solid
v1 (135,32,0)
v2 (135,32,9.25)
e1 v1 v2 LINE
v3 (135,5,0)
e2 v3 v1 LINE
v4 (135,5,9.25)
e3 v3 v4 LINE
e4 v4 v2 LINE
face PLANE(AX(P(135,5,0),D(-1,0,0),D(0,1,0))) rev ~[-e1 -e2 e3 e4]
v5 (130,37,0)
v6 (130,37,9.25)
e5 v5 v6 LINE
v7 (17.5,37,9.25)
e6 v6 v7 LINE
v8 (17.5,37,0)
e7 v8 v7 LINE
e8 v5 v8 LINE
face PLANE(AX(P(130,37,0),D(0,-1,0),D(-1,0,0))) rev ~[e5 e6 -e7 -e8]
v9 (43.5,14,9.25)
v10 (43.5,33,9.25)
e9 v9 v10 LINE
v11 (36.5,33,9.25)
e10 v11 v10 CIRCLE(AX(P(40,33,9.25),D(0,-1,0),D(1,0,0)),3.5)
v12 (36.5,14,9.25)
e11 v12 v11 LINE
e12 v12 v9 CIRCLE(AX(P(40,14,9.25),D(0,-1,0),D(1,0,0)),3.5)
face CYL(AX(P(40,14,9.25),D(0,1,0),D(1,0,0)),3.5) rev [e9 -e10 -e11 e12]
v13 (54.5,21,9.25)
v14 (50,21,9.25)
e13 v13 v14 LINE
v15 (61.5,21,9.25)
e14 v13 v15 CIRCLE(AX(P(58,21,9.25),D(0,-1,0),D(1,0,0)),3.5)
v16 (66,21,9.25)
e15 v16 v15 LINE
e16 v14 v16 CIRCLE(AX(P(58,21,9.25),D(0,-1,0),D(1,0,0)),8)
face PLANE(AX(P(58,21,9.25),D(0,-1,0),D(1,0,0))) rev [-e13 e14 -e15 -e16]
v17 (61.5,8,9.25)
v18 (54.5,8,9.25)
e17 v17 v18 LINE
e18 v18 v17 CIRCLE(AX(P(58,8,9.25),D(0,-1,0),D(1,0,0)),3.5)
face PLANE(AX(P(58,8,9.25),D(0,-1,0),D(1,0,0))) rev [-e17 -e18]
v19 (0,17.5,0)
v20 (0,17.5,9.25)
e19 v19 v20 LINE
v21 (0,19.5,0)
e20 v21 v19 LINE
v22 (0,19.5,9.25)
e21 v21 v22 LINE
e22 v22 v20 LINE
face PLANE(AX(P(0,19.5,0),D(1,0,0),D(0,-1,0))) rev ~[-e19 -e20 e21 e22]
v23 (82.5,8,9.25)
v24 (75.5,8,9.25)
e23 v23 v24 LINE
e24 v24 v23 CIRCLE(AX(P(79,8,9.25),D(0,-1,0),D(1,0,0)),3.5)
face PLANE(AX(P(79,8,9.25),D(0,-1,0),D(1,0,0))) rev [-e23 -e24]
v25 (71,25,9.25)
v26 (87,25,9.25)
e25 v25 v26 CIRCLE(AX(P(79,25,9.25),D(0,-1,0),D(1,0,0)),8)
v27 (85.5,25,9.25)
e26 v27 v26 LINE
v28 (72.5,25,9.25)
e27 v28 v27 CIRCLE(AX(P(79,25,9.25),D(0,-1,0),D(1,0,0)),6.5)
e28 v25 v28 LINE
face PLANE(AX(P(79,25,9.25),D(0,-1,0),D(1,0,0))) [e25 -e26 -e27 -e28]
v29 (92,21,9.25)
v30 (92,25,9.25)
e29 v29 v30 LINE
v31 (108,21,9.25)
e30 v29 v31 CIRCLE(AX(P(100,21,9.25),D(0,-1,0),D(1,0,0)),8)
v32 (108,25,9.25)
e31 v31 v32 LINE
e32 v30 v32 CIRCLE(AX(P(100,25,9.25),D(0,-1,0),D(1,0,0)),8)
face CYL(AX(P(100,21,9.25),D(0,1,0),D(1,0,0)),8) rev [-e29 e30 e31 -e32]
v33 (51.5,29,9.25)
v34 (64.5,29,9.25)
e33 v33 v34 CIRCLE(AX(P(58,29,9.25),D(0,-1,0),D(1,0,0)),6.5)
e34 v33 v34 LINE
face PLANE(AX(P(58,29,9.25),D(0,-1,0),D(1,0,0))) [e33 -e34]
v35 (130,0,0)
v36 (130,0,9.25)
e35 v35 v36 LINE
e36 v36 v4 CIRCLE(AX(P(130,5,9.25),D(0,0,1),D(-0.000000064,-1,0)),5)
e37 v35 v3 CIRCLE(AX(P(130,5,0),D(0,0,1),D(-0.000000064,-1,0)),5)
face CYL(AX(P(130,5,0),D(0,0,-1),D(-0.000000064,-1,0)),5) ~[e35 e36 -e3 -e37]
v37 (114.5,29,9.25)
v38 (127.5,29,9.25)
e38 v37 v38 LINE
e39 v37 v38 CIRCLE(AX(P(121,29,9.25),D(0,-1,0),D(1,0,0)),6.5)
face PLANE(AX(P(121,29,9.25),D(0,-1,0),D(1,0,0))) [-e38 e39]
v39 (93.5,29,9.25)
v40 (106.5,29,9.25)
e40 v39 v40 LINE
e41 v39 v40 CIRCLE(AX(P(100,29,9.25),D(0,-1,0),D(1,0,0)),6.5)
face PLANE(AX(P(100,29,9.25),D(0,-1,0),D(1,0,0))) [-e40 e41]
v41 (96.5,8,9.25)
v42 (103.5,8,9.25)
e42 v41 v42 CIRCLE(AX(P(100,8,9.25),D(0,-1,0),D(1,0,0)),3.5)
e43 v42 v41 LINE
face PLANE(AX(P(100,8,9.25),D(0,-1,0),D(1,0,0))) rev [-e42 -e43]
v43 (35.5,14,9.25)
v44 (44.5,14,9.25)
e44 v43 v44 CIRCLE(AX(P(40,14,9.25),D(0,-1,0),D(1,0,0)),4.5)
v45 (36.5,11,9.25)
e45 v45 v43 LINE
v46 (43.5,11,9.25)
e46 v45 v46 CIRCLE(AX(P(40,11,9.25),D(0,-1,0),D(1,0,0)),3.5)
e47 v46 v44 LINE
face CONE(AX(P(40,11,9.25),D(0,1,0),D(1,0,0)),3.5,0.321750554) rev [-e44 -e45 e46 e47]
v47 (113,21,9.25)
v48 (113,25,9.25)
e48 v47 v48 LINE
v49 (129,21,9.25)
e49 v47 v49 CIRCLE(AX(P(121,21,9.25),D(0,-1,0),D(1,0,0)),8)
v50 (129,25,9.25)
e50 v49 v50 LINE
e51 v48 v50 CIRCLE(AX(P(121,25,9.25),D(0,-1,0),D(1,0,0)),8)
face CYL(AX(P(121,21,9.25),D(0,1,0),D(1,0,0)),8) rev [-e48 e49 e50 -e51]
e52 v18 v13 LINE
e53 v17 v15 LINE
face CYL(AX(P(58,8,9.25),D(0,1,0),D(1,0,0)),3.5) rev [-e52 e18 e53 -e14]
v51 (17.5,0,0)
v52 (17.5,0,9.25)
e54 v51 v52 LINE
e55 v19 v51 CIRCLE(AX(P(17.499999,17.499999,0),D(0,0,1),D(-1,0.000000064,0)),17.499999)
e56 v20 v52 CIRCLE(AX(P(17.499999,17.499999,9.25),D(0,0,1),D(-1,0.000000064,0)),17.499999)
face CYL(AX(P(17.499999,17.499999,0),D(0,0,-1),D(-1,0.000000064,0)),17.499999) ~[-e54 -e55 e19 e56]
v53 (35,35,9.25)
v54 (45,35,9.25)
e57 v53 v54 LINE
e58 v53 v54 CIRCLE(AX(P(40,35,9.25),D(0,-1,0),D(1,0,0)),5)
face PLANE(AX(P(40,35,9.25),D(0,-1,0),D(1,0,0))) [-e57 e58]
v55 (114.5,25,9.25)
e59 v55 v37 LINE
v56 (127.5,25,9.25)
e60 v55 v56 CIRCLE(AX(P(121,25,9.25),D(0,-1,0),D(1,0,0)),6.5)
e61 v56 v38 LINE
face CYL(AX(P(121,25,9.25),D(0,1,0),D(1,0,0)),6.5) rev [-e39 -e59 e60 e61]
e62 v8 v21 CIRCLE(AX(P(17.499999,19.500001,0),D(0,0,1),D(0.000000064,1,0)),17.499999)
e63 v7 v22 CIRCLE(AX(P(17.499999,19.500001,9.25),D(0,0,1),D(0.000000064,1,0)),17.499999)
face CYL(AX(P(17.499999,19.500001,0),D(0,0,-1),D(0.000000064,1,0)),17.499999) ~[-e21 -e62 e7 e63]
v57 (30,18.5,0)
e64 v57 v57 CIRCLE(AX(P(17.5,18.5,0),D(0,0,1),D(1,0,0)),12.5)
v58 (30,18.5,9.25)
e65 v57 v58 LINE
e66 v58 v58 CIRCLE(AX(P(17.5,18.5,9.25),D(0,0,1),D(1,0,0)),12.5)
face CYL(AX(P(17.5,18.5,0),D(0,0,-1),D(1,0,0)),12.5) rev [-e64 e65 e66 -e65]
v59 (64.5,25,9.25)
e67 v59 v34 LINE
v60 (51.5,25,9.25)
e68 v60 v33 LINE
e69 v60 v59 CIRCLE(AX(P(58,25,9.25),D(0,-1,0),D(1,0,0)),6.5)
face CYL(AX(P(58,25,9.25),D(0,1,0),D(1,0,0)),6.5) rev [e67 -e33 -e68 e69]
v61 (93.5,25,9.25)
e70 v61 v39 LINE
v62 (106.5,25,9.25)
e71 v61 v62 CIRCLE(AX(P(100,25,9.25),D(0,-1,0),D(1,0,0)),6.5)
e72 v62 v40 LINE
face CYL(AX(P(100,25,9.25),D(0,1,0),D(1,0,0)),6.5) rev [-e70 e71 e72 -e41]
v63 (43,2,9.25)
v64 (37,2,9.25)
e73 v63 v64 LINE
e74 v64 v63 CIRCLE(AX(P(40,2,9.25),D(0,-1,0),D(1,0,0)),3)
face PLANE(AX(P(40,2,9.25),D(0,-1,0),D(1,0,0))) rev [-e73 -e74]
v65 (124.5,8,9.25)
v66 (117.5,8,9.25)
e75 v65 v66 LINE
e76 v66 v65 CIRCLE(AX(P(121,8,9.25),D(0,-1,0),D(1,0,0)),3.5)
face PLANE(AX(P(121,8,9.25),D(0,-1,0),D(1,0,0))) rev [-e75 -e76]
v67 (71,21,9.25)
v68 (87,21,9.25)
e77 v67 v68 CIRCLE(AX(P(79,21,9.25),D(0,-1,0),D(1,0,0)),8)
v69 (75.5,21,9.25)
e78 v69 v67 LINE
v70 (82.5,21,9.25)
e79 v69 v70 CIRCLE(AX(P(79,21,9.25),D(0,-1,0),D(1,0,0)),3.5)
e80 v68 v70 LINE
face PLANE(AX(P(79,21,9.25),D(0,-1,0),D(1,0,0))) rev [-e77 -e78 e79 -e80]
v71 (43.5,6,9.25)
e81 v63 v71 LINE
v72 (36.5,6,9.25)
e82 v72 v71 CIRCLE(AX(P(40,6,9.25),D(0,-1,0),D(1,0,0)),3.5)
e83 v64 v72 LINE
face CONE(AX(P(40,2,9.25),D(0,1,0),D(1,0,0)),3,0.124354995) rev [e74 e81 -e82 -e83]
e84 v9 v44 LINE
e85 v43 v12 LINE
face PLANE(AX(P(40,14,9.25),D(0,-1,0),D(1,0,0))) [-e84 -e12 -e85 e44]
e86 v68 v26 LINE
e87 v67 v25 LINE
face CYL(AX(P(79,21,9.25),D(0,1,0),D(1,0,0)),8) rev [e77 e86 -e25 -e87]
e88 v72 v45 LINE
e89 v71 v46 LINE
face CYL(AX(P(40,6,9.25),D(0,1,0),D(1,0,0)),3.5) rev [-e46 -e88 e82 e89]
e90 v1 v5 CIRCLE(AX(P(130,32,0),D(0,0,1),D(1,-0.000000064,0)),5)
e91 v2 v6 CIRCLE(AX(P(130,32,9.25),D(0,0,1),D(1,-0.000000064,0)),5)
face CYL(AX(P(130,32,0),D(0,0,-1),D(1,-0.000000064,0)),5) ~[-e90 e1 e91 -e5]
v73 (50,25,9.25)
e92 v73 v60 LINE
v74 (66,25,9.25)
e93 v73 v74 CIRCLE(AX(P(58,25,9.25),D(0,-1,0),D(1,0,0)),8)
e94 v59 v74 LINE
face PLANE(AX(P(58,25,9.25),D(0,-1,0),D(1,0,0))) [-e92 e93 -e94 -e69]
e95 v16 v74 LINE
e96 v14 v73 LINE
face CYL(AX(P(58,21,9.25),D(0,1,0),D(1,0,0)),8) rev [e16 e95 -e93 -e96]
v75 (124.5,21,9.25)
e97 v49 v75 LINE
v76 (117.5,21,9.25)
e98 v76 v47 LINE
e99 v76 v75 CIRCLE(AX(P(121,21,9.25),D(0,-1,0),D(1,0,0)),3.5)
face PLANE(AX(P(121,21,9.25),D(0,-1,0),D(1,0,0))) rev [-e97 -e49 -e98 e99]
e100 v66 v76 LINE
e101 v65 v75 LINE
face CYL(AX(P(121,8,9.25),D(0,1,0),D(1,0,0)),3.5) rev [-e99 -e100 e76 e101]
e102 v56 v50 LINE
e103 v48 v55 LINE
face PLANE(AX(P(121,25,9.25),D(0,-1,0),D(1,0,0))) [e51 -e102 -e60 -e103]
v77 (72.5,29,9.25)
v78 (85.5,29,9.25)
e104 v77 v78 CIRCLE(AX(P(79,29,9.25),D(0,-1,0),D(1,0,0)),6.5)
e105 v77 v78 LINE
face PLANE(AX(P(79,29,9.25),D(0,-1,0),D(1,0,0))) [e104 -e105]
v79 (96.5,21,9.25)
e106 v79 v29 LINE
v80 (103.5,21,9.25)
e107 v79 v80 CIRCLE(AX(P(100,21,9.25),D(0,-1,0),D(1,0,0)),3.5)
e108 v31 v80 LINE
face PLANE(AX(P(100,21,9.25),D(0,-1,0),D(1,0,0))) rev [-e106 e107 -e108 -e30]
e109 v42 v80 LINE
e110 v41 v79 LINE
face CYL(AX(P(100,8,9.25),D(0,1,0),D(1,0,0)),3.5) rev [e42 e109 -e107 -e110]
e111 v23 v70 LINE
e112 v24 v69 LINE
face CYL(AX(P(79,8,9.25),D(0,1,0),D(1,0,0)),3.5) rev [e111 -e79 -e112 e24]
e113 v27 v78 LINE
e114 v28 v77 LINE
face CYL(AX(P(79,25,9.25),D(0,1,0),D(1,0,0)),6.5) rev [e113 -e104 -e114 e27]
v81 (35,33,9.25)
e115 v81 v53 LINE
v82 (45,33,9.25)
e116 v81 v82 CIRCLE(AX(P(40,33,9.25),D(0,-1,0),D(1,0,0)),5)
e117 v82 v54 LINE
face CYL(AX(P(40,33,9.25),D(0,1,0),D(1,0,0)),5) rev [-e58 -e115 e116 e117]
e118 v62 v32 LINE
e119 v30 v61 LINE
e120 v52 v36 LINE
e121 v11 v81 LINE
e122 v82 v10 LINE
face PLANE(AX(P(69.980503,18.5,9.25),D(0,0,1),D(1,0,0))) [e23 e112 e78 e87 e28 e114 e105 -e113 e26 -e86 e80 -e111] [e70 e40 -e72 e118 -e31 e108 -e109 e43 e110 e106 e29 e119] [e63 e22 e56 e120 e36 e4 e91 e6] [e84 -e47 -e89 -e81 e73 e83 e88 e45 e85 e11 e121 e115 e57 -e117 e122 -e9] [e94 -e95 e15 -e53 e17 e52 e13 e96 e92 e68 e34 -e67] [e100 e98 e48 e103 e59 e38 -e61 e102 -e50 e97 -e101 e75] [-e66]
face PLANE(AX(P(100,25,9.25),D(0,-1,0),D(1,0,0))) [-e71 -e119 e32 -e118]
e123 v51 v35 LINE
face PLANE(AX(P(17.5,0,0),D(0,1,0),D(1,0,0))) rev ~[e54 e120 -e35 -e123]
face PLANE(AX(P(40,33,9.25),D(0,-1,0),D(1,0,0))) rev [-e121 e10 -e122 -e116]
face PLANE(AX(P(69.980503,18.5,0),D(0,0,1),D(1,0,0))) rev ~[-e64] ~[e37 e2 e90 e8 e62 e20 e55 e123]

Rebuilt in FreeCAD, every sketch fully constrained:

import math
import FreeCAD as App
import Part
import Sketcher
Q = App.Units.Quantity


def add_polygon(sketch, points):
    """Adds a closed chain of lines whose ends are joined by coincident constraints."""
    first, n = sketch.GeometryCount, len(points)
    for a, b in zip(points, points[1:] + points[:1]):
        sketch.addGeometry(Part.LineSegment(App.Vector(*a, 0), App.Vector(*b, 0)), False)
    for i in range(n):
        sketch.addConstraint(Sketcher.Constraint("Coincident", first + i, 2, first + (i + 1) % n, 1))

doc = App.newDocument("Part")
body = doc.addObject("PartDesign::Body", "Body")

sketch1 = body.newObject("Sketcher::SketchObject", "Sketch")
sketch1.AttachmentSupport = (doc.getObject("XY_Plane"), [""])
sketch1.MapMode = "FlatFace"
sketch1.addGeometry([
    Part.ArcOfCircle(Part.Circle(App.Vector(17.5, 17.5, 0), App.Vector(0, 0, 1), 17.5), math.radians(180), math.radians(270)),
    Part.LineSegment(App.Vector(17.5, 0, 0), App.Vector(130, 0, 0)),
    Part.ArcOfCircle(Part.Circle(App.Vector(130, 5, 0), App.Vector(0, 0, 1), 5), math.radians(-90), math.radians(0)),
    Part.LineSegment(App.Vector(135, 5, 0), App.Vector(135, 32, 0)),
    Part.ArcOfCircle(Part.Circle(App.Vector(130, 32, 0), App.Vector(0, 0, 1), 5), math.radians(0), math.radians(90)),
    Part.LineSegment(App.Vector(130, 37, 0), App.Vector(17.5, 37, 0)),
    Part.ArcOfCircle(Part.Circle(App.Vector(17.5, 19.5, 0), App.Vector(0, 0, 1), 17.5), math.radians(90), math.radians(180)),
    Part.LineSegment(App.Vector(0, 19.5, 0), App.Vector(0, 17.5, 0)),
    Part.Circle(App.Vector(17.5, 18.5, 0), App.Vector(0, 0, 1), 12.5),
], False)
sketch1.addConstraint([
    Sketcher.Constraint("Tangent", 0, 2, 1, 1),
    Sketcher.Constraint("Tangent", 1, 2, 2, 1),
    Sketcher.Constraint("Tangent", 2, 2, 3, 1),
    Sketcher.Constraint("Tangent", 3, 2, 4, 1),
    Sketcher.Constraint("Tangent", 4, 2, 5, 1),
    Sketcher.Constraint("Tangent", 5, 2, 6, 1),
    Sketcher.Constraint("Tangent", 6, 2, 7, 1),
    Sketcher.Constraint("Tangent", 7, 2, 0, 1),
    Sketcher.Constraint("Horizontal", 1),
    Sketcher.Constraint("Vertical", 3),
    Sketcher.Constraint("Horizontal", 5),
    Sketcher.Constraint("Vertical", 7),
    Sketcher.Constraint("Equal", 2, 4),
    Sketcher.Constraint("Equal", 0, 6),
    Sketcher.Constraint("PointOnObject", 0, 2, -1),
    Sketcher.Constraint("PointOnObject", 6, 2, -2),
    Sketcher.Constraint("Vertical", 6, 3, 8, 3),
    Sketcher.Constraint("Diameter", 8, Q("25 mm")),
    Sketcher.Constraint("Radius", 2, Q("5 mm")),
    Sketcher.Constraint("Radius", 0, Q("17.499999 mm")),
    Sketcher.Constraint("DistanceY", 3, 1, 3, 2, Q("27 mm")),
    Sketcher.Constraint("DistanceX", 1, 1, 1, 2, Q("112.5 mm")),
    Sketcher.Constraint("DistanceY", 0, 3, 8, 3, Q("1.000001 mm")),
])
pad1 = body.newObject("PartDesign::Pad", "Pad")
pad1.Profile = sketch1
pad1.Length = 9.25

sketch2 = body.newObject("Sketcher::SketchObject", "Sketch001")
sketch2.AttachmentSupport = (doc.getObject("XY_Plane"), [""])
sketch2.MapMode = "FlatFace"
sketch2.AttachmentOffset = App.Placement(App.Vector(0, 0, 9.25), App.Rotation())
add_polygon(sketch2, [(45, 35), (40, 35), (40, 2), (43, 2), (43.5, 6), (43.5, 11), (44.5, 14), (43.5, 14), (43.5, 33), (45, 33)])
sketch2.addGeometry(Part.LineSegment(App.Vector(40, 35, 0), App.Vector(40, 2, 0)), True)
sketch2.addConstraint([
    Sketcher.Constraint("Horizontal", 0),
    Sketcher.Constraint("Vertical", 1),
    Sketcher.Constraint("Horizontal", 2),
    Sketcher.Constraint("Vertical", 4),
    Sketcher.Constraint("Horizontal", 6),
    Sketcher.Constraint("Vertical", 7),
    Sketcher.Constraint("Horizontal", 8),
    Sketcher.Constraint("Vertical", 9),
    Sketcher.Constraint("Vertical", 10),
    Sketcher.Constraint("Coincident", 10, 1, 0, 2),
    Sketcher.Constraint("Horizontal", 2, 2, 10, 2),
    Sketcher.Constraint("Vertical", 4, 2, 6, 2),
    Sketcher.Constraint("Equal", 0, 4),
    Sketcher.Constraint("DistanceX", 0, 2, 0, 1, Q("5 mm")),
    Sketcher.Constraint("DistanceX", 2, 1, 2, 2, Q("3 mm")),
    Sketcher.Constraint("DistanceX", 6, 2, 6, 1, Q("1 mm")),
    Sketcher.Constraint("DistanceY", 1, 2, 1, 1, Q("33 mm")),
    Sketcher.Constraint("DistanceY", 7, 1, 7, 2, Q("19 mm")),
    Sketcher.Constraint("DistanceY", 9, 1, 9, 2, Q("2 mm")),
    Sketcher.Constraint("DistanceX", 8, 1, 8, 2, Q("1.5 mm")),
    Sketcher.Constraint("DistanceX", -1, 1, 0, 2, Q("40 mm")),
    Sketcher.Constraint("DistanceY", -1, 1, 0, 2, Q("35 mm")),
    Sketcher.Constraint("DistanceY", -1, 1, 3, 2, Q("6 mm")),
])
groove = body.newObject("PartDesign::Groove", "Groove")
groove.Profile = sketch2
groove.ReferenceAxis = (sketch2, ["Axis0"])
groove.Angle = 360

sketch3 = body.newObject("Sketcher::SketchObject", "Sketch002")
sketch3.AttachmentSupport = (doc.getObject("XY_Plane"), [""])
sketch3.MapMode = "FlatFace"
sketch3.AttachmentOffset = App.Placement(App.Vector(0, 0, 9.25), App.Rotation())
add_polygon(sketch3, [(64.5, 29), (58, 29), (58, 8), (61.5, 8), (61.5, 21), (66, 21), (66, 25), (64.5, 25)])
sketch3.addGeometry(Part.LineSegment(App.Vector(58, 29, 0), App.Vector(58, 8, 0)), True)
sketch3.addConstraint([
    Sketcher.Constraint("Horizontal", 0),
    Sketcher.Constraint("Vertical", 1),
    Sketcher.Constraint("Horizontal", 2),
    Sketcher.Constraint("Vertical", 3),
    Sketcher.Constraint("Horizontal", 4),
    Sketcher.Constraint("Vertical", 5),
    Sketcher.Constraint("Horizontal", 6),
    Sketcher.Constraint("Vertical", 7),
    Sketcher.Constraint("Vertical", 8),
    Sketcher.Constraint("Coincident", 8, 1, 0, 2),
    Sketcher.Constraint("Horizontal", 2, 2, 8, 2),
    Sketcher.Constraint("Equal", 5, 7),
    Sketcher.Constraint("DistanceY", 1, 2, 1, 1, Q("21 mm")),
    Sketcher.Constraint("DistanceY", 3, 1, 3, 2, Q("13 mm")),
    Sketcher.Constraint("DistanceX", 0, 2, 0, 1, Q("6.5 mm")),
    Sketcher.Constraint("DistanceX", 2, 1, 2, 2, Q("3.5 mm")),
    Sketcher.Constraint("DistanceX", 4, 1, 4, 2, Q("4.5 mm")),
    Sketcher.Constraint("DistanceX", -1, 1, 0, 2, Q("58 mm")),
    Sketcher.Constraint("DistanceY", -1, 1, 0, 2, Q("29 mm")),
])
groove2 = body.newObject("PartDesign::Groove", "Groove001")
groove2.Profile = sketch3
groove2.ReferenceAxis = (sketch3, ["Axis0"])
groove2.Angle = 360

sketch4 = body.newObject("Sketcher::SketchObject", "Sketch003")
sketch4.AttachmentSupport = (doc.getObject("XY_Plane"), [""])
sketch4.MapMode = "FlatFace"
sketch4.AttachmentOffset = App.Placement(App.Vector(0, 0, 9.25), App.Rotation())
add_polygon(sketch4, [(85.5, 29), (79, 29), (79, 8), (82.5, 8), (82.5, 21), (87, 21), (87, 25), (85.5, 25)])
sketch4.addGeometry(Part.LineSegment(App.Vector(79, 29, 0), App.Vector(79, 8, 0)), True)
sketch4.addConstraint([
    Sketcher.Constraint("Horizontal", 0),
    Sketcher.Constraint("Vertical", 1),
    Sketcher.Constraint("Horizontal", 2),
    Sketcher.Constraint("Vertical", 3),
    Sketcher.Constraint("Horizontal", 4),
    Sketcher.Constraint("Vertical", 5),
    Sketcher.Constraint("Horizontal", 6),
    Sketcher.Constraint("Vertical", 7),
    Sketcher.Constraint("Vertical", 8),
    Sketcher.Constraint("Coincident", 8, 1, 0, 2),
    Sketcher.Constraint("Horizontal", 2, 2, 8, 2),
    Sketcher.Constraint("Equal", 5, 7),
    Sketcher.Constraint("DistanceY", 1, 2, 1, 1, Q("21 mm")),
    Sketcher.Constraint("DistanceY", 3, 1, 3, 2, Q("13 mm")),
    Sketcher.Constraint("DistanceX", 0, 2, 0, 1, Q("6.5 mm")),
    Sketcher.Constraint("DistanceX", 2, 1, 2, 2, Q("3.5 mm")),
    Sketcher.Constraint("DistanceX", 4, 1, 4, 2, Q("4.5 mm")),
    Sketcher.Constraint("DistanceX", -1, 1, 0, 2, Q("79 mm")),
    Sketcher.Constraint("DistanceY", -1, 1, 0, 2, Q("29 mm")),
])
groove3 = body.newObject("PartDesign::Groove", "Groove002")
groove3.Profile = sketch4
groove3.ReferenceAxis = (sketch4, ["Axis0"])
groove3.Angle = 360

sketch5 = body.newObject("Sketcher::SketchObject", "Sketch004")
sketch5.AttachmentSupport = (doc.getObject("XY_Plane"), [""])
sketch5.MapMode = "FlatFace"
sketch5.AttachmentOffset = App.Placement(App.Vector(0, 0, 9.25), App.Rotation())
add_polygon(sketch5, [(106.5, 29), (100, 29), (100, 8), (103.5, 8), (103.5, 21), (108, 21), (108, 25), (106.5, 25)])
sketch5.addGeometry(Part.LineSegment(App.Vector(100, 29, 0), App.Vector(100, 8, 0)), True)
sketch5.addConstraint([
    Sketcher.Constraint("Horizontal", 0),
    Sketcher.Constraint("Vertical", 1),
    Sketcher.Constraint("Horizontal", 2),
    Sketcher.Constraint("Vertical", 3),
    Sketcher.Constraint("Horizontal", 4),
    Sketcher.Constraint("Vertical", 5),
    Sketcher.Constraint("Horizontal", 6),
    Sketcher.Constraint("Vertical", 7),
    Sketcher.Constraint("Vertical", 8),
    Sketcher.Constraint("Coincident", 8, 1, 0, 2),
    Sketcher.Constraint("Horizontal", 2, 2, 8, 2),
    Sketcher.Constraint("Equal", 5, 7),
    Sketcher.Constraint("DistanceY", 1, 2, 1, 1, Q("21 mm")),
    Sketcher.Constraint("DistanceY", 3, 1, 3, 2, Q("13 mm")),
    Sketcher.Constraint("DistanceX", 0, 2, 0, 1, Q("6.5 mm")),
    Sketcher.Constraint("DistanceX", 2, 1, 2, 2, Q("3.5 mm")),
    Sketcher.Constraint("DistanceX", 4, 1, 4, 2, Q("4.5 mm")),
    Sketcher.Constraint("DistanceX", -1, 1, 0, 2, Q("100 mm")),
    Sketcher.Constraint("DistanceY", -1, 1, 0, 2, Q("29 mm")),
])
groove4 = body.newObject("PartDesign::Groove", "Groove003")
groove4.Profile = sketch5
groove4.ReferenceAxis = (sketch5, ["Axis0"])
groove4.Angle = 360

sketch6 = body.newObject("Sketcher::SketchObject", "Sketch005")
sketch6.AttachmentSupport = (doc.getObject("XY_Plane"), [""])
sketch6.MapMode = "FlatFace"
sketch6.AttachmentOffset = App.Placement(App.Vector(0, 0, 9.25), App.Rotation())
add_polygon(sketch6, [(127.5, 29), (121, 29), (121, 8), (124.5, 8), (124.5, 21), (129, 21), (129, 25), (127.5, 25)])
sketch6.addGeometry(Part.LineSegment(App.Vector(121, 29, 0), App.Vector(121, 8, 0)), True)
sketch6.addConstraint([
    Sketcher.Constraint("Horizontal", 0),
    Sketcher.Constraint("Vertical", 1),
    Sketcher.Constraint("Horizontal", 2),
    Sketcher.Constraint("Vertical", 3),
    Sketcher.Constraint("Horizontal", 4),
    Sketcher.Constraint("Vertical", 5),
    Sketcher.Constraint("Horizontal", 6),
    Sketcher.Constraint("Vertical", 7),
    Sketcher.Constraint("Vertical", 8),
    Sketcher.Constraint("Coincident", 8, 1, 0, 2),
    Sketcher.Constraint("Horizontal", 2, 2, 8, 2),
    Sketcher.Constraint("Equal", 5, 7),
    Sketcher.Constraint("DistanceY", 1, 2, 1, 1, Q("21 mm")),
    Sketcher.Constraint("DistanceY", 3, 1, 3, 2, Q("13 mm")),
    Sketcher.Constraint("DistanceX", 0, 2, 0, 1, Q("6.5 mm")),
    Sketcher.Constraint("DistanceX", 2, 1, 2, 2, Q("3.5 mm")),
    Sketcher.Constraint("DistanceX", 4, 1, 4, 2, Q("4.5 mm")),
    Sketcher.Constraint("DistanceX", -1, 1, 0, 2, Q("121 mm")),
    Sketcher.Constraint("DistanceY", -1, 1, 0, 2, Q("29 mm")),
])
groove5 = body.newObject("PartDesign::Groove", "Groove004")
groove5.Profile = sketch6
groove5.ReferenceAxis = (sketch6, ["Axis0"])
groove5.Angle = 360

doc.recompute()
